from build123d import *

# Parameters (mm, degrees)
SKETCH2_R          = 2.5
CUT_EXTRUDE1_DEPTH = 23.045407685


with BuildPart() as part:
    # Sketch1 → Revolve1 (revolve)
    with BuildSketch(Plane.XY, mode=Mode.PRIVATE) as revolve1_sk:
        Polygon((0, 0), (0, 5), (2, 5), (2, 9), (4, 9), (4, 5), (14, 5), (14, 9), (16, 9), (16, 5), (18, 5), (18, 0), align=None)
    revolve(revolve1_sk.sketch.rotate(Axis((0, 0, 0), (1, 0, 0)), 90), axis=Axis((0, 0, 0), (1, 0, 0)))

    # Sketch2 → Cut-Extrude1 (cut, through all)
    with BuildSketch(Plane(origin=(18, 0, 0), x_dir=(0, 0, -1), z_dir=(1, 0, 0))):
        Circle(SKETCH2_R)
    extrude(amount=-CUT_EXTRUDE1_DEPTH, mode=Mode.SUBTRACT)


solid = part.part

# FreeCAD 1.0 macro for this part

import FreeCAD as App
import Part
import Sketcher

doc = App.newDocument("Part")
params = doc.addObject("Spreadsheet::Sheet", "Params")
for row, (alias, value) in enumerate([
    ("sketch1_width", "18 mm"),
    ("sketch1_width2", "2 mm"),
    ("sketch1_height", "5 mm"),
    ("sketch1_height2", "4 mm"),
    ("revolution_angle", "360 deg"),
    ("sketch2_diameter", "5 mm"),
], start=1):
    params.set(f"A{row}", alias)
    params.set(f"B{row}", "=" + value)
    params.setAlias(f"B{row}", alias)

body = doc.addObject("PartDesign::Body", "Body")

sketch1 = body.newObject("Sketcher::SketchObject", "Sketch")
sketch1.AttachmentSupport = (doc.getObject("XY_Plane"), [""])
sketch1.MapMode = "FlatFace"
sketch1.addGeometry(Part.LineSegment(App.Vector(0, 5, 0), App.Vector(0, 0, 0)), False)
sketch1.addGeometry(Part.LineSegment(App.Vector(0, 0, 0), App.Vector(18, 0, 0)), False)
sketch1.addGeometry(Part.LineSegment(App.Vector(18, 0, 0), App.Vector(18, 5, 0)), False)
sketch1.addGeometry(Part.LineSegment(App.Vector(18, 5, 0), App.Vector(16, 5, 0)), False)
sketch1.addGeometry(Part.LineSegment(App.Vector(16, 5, 0), App.Vector(16, 9, 0)), False)
sketch1.addGeometry(Part.LineSegment(App.Vector(16, 9, 0), App.Vector(14, 9, 0)), False)
sketch1.addGeometry(Part.LineSegment(App.Vector(14, 9, 0), App.Vector(14, 5, 0)), False)
sketch1.addGeometry(Part.LineSegment(App.Vector(14, 5, 0), App.Vector(4, 5, 0)), False)
sketch1.addGeometry(Part.LineSegment(App.Vector(4, 5, 0), App.Vector(4, 9, 0)), False)
sketch1.addGeometry(Part.LineSegment(App.Vector(4, 9, 0), App.Vector(2, 9, 0)), False)
sketch1.addGeometry(Part.LineSegment(App.Vector(2, 9, 0), App.Vector(2, 5, 0)), False)
sketch1.addGeometry(Part.LineSegment(App.Vector(2, 5, 0), App.Vector(0, 5, 0)), False)
sketch1.addConstraint(Sketcher.Constraint("Coincident", 0, 2, 1, 1))
sketch1.addConstraint(Sketcher.Constraint("Coincident", 1, 2, 2, 1))
sketch1.addConstraint(Sketcher.Constraint("Coincident", 2, 2, 3, 1))
sketch1.addConstraint(Sketcher.Constraint("Coincident", 3, 2, 4, 1))
sketch1.addConstraint(Sketcher.Constraint("Coincident", 4, 2, 5, 1))
sketch1.addConstraint(Sketcher.Constraint("Coincident", 5, 2, 6, 1))
sketch1.addConstraint(Sketcher.Constraint("Coincident", 6, 2, 7, 1))
sketch1.addConstraint(Sketcher.Constraint("Coincident", 7, 2, 8, 1))
sketch1.addConstraint(Sketcher.Constraint("Coincident", 8, 2, 9, 1))
sketch1.addConstraint(Sketcher.Constraint("Coincident", 9, 2, 10, 1))
sketch1.addConstraint(Sketcher.Constraint("Coincident", 10, 2, 11, 1))
sketch1.addConstraint(Sketcher.Constraint("Coincident", 11, 2, 0, 1))
sketch1.addConstraint(Sketcher.Constraint("Vertical", 0))
sketch1.addConstraint(Sketcher.Constraint("Horizontal", 1))
sketch1.addConstraint(Sketcher.Constraint("Vertical", 2))
sketch1.addConstraint(Sketcher.Constraint("Horizontal", 3))
sketch1.addConstraint(Sketcher.Constraint("Vertical", 4))
sketch1.addConstraint(Sketcher.Constraint("Horizontal", 5))
sketch1.addConstraint(Sketcher.Constraint("Vertical", 6))
sketch1.addConstraint(Sketcher.Constraint("Horizontal", 7))
sketch1.addConstraint(Sketcher.Constraint("Vertical", 8))
sketch1.addConstraint(Sketcher.Constraint("Horizontal", 9))
sketch1.addConstraint(Sketcher.Constraint("Vertical", 10))
sketch1.addConstraint(Sketcher.Constraint("Horizontal", 11))
sketch1.addConstraint(Sketcher.Constraint("Coincident", 0, 2, -1, 1))
sketch1.addConstraint(Sketcher.Constraint("Horizontal", 3, 2, 6, 2))
sketch1.addConstraint(Sketcher.Constraint("Horizontal", 5, 2, 8, 2))
sketch1.addConstraint(Sketcher.Constraint("Horizontal", 7, 2, 10, 2))
sketch1.addConstraint(Sketcher.Constraint("Equal", 3, 5))
sketch1.addConstraint(Sketcher.Constraint("Equal", 5, 9))
sketch1.addConstraint(Sketcher.Constraint("Equal", 9, 11))
sketch1.addConstraint(Sketcher.Constraint("DistanceX", 1, 1, 1, 2, 18.0))
sketch1.addConstraint(Sketcher.Constraint("DistanceX", 3, 2, 3, 1, 2.0))
sketch1.addConstraint(Sketcher.Constraint("DistanceY", 0, 2, 0, 1, 5.0))
sketch1.addConstraint(Sketcher.Constraint("DistanceY", 4, 1, 4, 2, 4.0))
sketch1.setExpression("Constraints[31]", "Params.sketch1_width")
sketch1.setExpression("Constraints[32]", "Params.sketch1_width2")
sketch1.setExpression("Constraints[33]", "Params.sketch1_height")
sketch1.setExpression("Constraints[34]", "Params.sketch1_height2")
revolution = body.newObject("PartDesign::Revolution", "Revolution")
revolution.Profile = sketch1
revolution.ReferenceAxis = (sketch1, ["H_Axis"])
revolution.setExpression("Angle", "Params.revolution_angle")

sketch2 = body.newObject("Sketcher::SketchObject", "Sketch001")
sketch2.AttachmentSupport = (doc.getObject("YZ_Plane"), [""])
sketch2.MapMode = "FlatFace"
sketch2.AttachmentOffset = App.Placement(App.Vector(0, 0, 18), App.Rotation())
sketch2.addGeometry(Part.Circle(App.Vector(0, 0, 0), App.Vector(0, 0, 1), 2.5), False)
sketch2.addConstraint(Sketcher.Constraint("Coincident", 0, 3, -1, 1))
sketch2.addConstraint(Sketcher.Constraint("Diameter", 0, 5.0))
sketch2.setExpression("Constraints[1]", "Params.sketch2_diameter")
pocket1 = body.newObject("PartDesign::Pocket", "Pocket")
pocket1.Profile = sketch2
pocket1.Type = "ThroughAll"

doc.recompute()
